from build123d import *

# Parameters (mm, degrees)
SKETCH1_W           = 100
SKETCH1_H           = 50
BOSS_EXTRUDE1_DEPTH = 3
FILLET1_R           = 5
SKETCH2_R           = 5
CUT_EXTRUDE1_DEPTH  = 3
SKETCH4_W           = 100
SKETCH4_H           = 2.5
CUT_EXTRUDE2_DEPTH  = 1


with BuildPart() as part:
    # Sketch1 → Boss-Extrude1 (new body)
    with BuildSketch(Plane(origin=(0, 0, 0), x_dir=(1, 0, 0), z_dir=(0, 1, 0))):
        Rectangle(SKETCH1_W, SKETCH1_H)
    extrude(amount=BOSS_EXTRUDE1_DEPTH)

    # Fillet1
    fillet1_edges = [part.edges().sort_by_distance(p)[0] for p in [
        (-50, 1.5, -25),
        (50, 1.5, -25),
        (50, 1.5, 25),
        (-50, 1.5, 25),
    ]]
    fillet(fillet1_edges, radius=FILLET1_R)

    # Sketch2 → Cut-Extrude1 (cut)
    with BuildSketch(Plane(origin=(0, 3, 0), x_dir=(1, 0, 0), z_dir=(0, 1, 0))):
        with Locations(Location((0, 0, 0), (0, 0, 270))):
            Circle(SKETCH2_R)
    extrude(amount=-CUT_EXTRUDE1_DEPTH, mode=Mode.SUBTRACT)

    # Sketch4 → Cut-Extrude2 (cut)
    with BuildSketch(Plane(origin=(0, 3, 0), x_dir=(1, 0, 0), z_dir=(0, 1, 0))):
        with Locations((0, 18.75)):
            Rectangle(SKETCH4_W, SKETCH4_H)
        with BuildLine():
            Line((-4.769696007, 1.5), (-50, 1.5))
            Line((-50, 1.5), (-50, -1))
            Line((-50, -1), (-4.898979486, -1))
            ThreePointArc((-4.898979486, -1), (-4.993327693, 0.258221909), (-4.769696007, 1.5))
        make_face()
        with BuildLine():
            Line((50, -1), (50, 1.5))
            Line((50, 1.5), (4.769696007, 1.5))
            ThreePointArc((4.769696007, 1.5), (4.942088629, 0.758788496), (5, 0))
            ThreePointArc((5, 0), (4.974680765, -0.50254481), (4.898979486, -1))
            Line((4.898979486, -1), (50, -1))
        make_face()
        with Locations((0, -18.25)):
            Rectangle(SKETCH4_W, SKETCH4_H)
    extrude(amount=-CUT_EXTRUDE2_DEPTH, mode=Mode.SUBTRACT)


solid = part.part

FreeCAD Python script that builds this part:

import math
import FreeCAD as App
import Part
import Sketcher
from FreeCAD import Vector


def edges_at(feature, points):
    """Names of the edges that pass closest to the given points."""
    edges = feature.Shape.Edges
    near = lambda p: min(range(len(edges)), key=lambda i: edges[i].distToShape(Part.Vertex(*p))[0])
    return sorted({f"Edge{near(p) + 1}" for p in points})


def add_polygon(sketch, points):
    """Adds a closed chain of lines whose ends are joined by coincident constraints."""
    first, n = sketch.GeometryCount, len(points)
    for a, b in zip(points, points[1:] + points[:1]):
        sketch.addGeometry(Part.LineSegment(App.Vector(*a, 0), App.Vector(*b, 0)), False)
    for i in range(n):
        sketch.addConstraint(Sketcher.Constraint("Coincident", first + i, 2, first + (i + 1) % n, 1))

doc = App.newDocument("Part")
body = doc.addObject("PartDesign::Body", "Body")

# Sketch on XZ plane
sketch1 = doc.addObject("Sketcher::SketchObject", "Sketch")
body.addObject(sketch1)
sketch1.AttachmentSupport = (doc.XZ_Plane, [""])
sketch1.MapMode = "FlatFace"
add_polygon(sketch1, [(-50, -25), (-50, 25), (50, 25), (50, -25)])  # lines 0-3
sketch1.addConstraint(Sketcher.Constraint("Vertical", 0))
sketch1.addConstraint(Sketcher.Constraint("Horizontal", 1))
sketch1.addConstraint(Sketcher.Constraint("Vertical", 2))
sketch1.addConstraint(Sketcher.Constraint("Horizontal", 3))
sketch1.addConstraint(Sketcher.Constraint("Symmetric", 0, 2, 2, 2, -1, 1))
sketch1.addConstraint(Sketcher.Constraint("DistanceX", 1, 1, 1, 2, 100.0))
sketch1.addConstraint(Sketcher.Constraint("DistanceY", 0, 1, 0, 2, 50.0))
pad1 = doc.addObject("PartDesign::Pad", "Pad")
body.addObject(pad1)
pad1.Profile = sketch1
pad1.Length = 3
pad1.Reversed = True
doc.recompute()

fillet = doc.addObject("PartDesign::Fillet", "Fillet")
body.addObject(fillet)
fillet.Base = (pad1, edges_at(pad1, [
    (-50, 1.5, -25),
    (50, 1.5, -25),
    (50, 1.5, 25),
    (-50, 1.5, 25),
]))
fillet.Radius = 5

# Sketch on XZ plane
sketch2 = doc.addObject("Sketcher::SketchObject", "Sketch001")
body.addObject(sketch2)
sketch2.AttachmentSupport = (doc.XZ_Plane, [""])
sketch2.MapMode = "FlatFace"
sketch2.AttachmentOffset = App.Placement(Vector(0, 0, -3), App.Rotation())
sketch2.addGeometry(Part.Circle(Vector(0, 0, 0), Vector(0, 0, 1), 5), False)
sketch2.addConstraint(Sketcher.Constraint("Coincident", 0, 3, -1, 1))
sketch2.addConstraint(Sketcher.Constraint("Diameter", 0, 10.0))
pocket1 = doc.addObject("PartDesign::Pocket", "Pocket")
body.addObject(pocket1)
pocket1.Profile = sketch2
pocket1.Length = 3
pocket1.Reversed = True

# Sketch on XZ plane
sketch3 = doc.addObject("Sketcher::SketchObject", "Sketch002")
body.addObject(sketch3)
sketch3.AttachmentSupport = (doc.XZ_Plane, [""])
sketch3.MapMode = "FlatFace"
sketch3.AttachmentOffset = App.Placement(Vector(0, 0, -3), App.Rotation())
add_polygon(sketch3, [(-50, -20), (-50, -17.5), (50, -17.5), (50, -20)])  # lines 0-3
sketch3.addGeometry(Part.LineSegment(Vector(-4.8, -1.5, 0), Vector(-50, -1.5, 0)), False)  # 4
sketch3.addGeometry(Part.LineSegment(Vector(-50, -1.5, 0), Vector(-50, 1, 0)), False)  # 5
sketch3.addGeometry(Part.LineSegment(Vector(-50, 1, 0), Vector(-4.9, 1, 0)), False)  # 6
sketch3.addGeometry(Part.ArcOfCircle(Part.Circle(Vector(0, 0, 0), Vector(0, 0, 1), 5), math.radians(168), math.radians(197)), False)  # 7
sketch3.addGeometry(Part.LineSegment(Vector(50, 1, 0), Vector(50, -1.5, 0)), False)  # 8
sketch3.addGeometry(Part.LineSegment(Vector(50, -1.5, 0), Vector(4.8, -1.5, 0)), False)  # 9
sketch3.addGeometry(Part.ArcOfCircle(Part.Circle(Vector(0, 0, 0), Vector(0, 0, 1), 5), math.radians(-17.46), math.radians(0)), False)  # 10
sketch3.addGeometry(Part.ArcOfCircle(Part.Circle(Vector(0, 0, 0), Vector(0, 0, 1), 5), math.radians(0), math.radians(11.54)), False)  # 11
sketch3.addGeometry(Part.LineSegment(Vector(4.9, 1, 0), Vector(50, 1, 0)), False)  # 12
add_polygon(sketch3, [(-50, 17), (-50, 19.5), (50, 19.5), (50, 17)])  # lines 13-16
sketch3.addConstraint(Sketcher.Constraint("Coincident", 4, 2, 5, 1))
sketch3.addConstraint(Sketcher.Constraint("Coincident", 5, 2, 6, 1))
sketch3.addConstraint(Sketcher.Constraint("Coincident", 6, 2, 7, 1))
sketch3.addConstraint(Sketcher.Constraint("Coincident", 7, 2, 4, 1))
sketch3.addConstraint(Sketcher.Constraint("Coincident", 8, 2, 9, 1))
sketch3.addConstraint(Sketcher.Constraint("Coincident", 9, 2, 10, 1))
sketch3.addConstraint(Sketcher.Constraint("Tangent", 10, 2, 11, 1))
sketch3.addConstraint(Sketcher.Constraint("Coincident", 11, 2, 12, 1))
sketch3.addConstraint(Sketcher.Constraint("Coincident", 12, 2, 8, 1))
sketch3.addConstraint(Sketcher.Constraint("Vertical", 0))
sketch3.addConstraint(Sketcher.Constraint("Horizontal", 1))
sketch3.addConstraint(Sketcher.Constraint("Vertical", 2))
sketch3.addConstraint(Sketcher.Constraint("Horizontal", 3))
sketch3.addConstraint(Sketcher.Constraint("Horizontal", 4))
sketch3.addConstraint(Sketcher.Constraint("Vertical", 5))
sketch3.addConstraint(Sketcher.Constraint("Horizontal", 6))
sketch3.addConstraint(Sketcher.Constraint("Vertical", 8))
sketch3.addConstraint(Sketcher.Constraint("Horizontal", 9))
sketch3.addConstraint(Sketcher.Constraint("Horizontal", 12))
sketch3.addConstraint(Sketcher.Constraint("Vertical", 13))
sketch3.addConstraint(Sketcher.Constraint("Horizontal", 14))
sketch3.addConstraint(Sketcher.Constraint("Vertical", 15))
sketch3.addConstraint(Sketcher.Constraint("Horizontal", 16))
sketch3.addConstraint(Sketcher.Constraint("Coincident", 7, 3, -1, 1))
sketch3.addConstraint(Sketcher.Constraint("Coincident", 10, 3, -1, 1))
sketch3.addConstraint(Sketcher.Constraint("Equal", 7, 10))
sketch3.addConstraint(Sketcher.Constraint("Equal", 10, 11))
sketch3.addConstraint(Sketcher.Constraint("Symmetric", 4, 2, 8, 2, -2))
sketch3.addConstraint(Sketcher.Constraint("PointOnObject", 10, 2, -1))
sketch3.addConstraint(Sketcher.Constraint("Horizontal", 6, 2, 11, 2))
sketch3.addConstraint(Sketcher.Constraint("Vertical", 3, 2, 4, 2))
sketch3.addConstraint(Sketcher.Constraint("Vertical", 2, 2, 8, 2))
sketch3.addConstraint(Sketcher.Constraint("Vertical", 5, 2, 13, 2))
sketch3.addConstraint(Sketcher.Constraint("Vertical", 12, 2, 14, 2))
sketch3.addConstraint(Sketcher.Constraint("Equal", 2, 5))
sketch3.addConstraint(Sketcher.Constraint("Equal", 8, 13))
sketch3.addConstraint(Sketcher.Constraint("Radius", 7, 5.0))
sketch3.addConstraint(Sketcher.Constraint("DistanceX", 1, 1, 1, 2, 100.0))
sketch3.addConstraint(Sketcher.Constraint("DistanceY", 0, 1, 0, 2, 2.5))
sketch3.addConstraint(Sketcher.Constraint("DistanceY", 2, 2, -1, 1, 20.0))
sketch3.addConstraint(Sketcher.Constraint("DistanceY", -1, 1, 5, 2, 1.0))
sketch3.addConstraint(Sketcher.Constraint("DistanceY", -1, 1, 15, 2, 17.0))
pocket2 = doc.addObject("PartDesign::Pocket", "Pocket001")
body.addObject(pocket2)
pocket2.Profile = sketch3
pocket2.Length = 1
pocket2.Reversed = True

doc.recompute()
